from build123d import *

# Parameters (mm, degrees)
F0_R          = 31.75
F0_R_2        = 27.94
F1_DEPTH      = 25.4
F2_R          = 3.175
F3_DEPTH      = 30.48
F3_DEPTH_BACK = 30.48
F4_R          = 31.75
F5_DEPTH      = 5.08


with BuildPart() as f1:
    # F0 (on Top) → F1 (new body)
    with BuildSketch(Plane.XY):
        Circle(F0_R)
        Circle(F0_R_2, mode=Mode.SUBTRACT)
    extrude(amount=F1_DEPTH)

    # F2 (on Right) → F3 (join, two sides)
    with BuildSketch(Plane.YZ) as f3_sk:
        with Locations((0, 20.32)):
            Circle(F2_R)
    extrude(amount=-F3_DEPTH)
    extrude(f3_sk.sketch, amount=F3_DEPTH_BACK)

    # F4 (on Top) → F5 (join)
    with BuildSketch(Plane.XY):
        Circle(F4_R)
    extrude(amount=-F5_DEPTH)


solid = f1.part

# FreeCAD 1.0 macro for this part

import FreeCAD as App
import Part
import Sketcher

V = App.Vector
Q = App.Units.Quantity

doc = App.newDocument("Part")
body = doc.addObject("PartDesign::Body", "Body")

# Sketch on XY plane
sketch1 = doc.addObject("Sketcher::SketchObject", "Sketch")
body.addObject(sketch1)
sketch1.AttachmentSupport = (doc.XY_Plane, [""])
sketch1.MapMode = "FlatFace"
sketch1.addGeometry([
    Part.Circle(V(0, 0, 0), V(0, 0, 1), 32),
    Part.Circle(V(0, 0, 0), V(0, 0, 1), 28),
], False)
sketch1.addConstraint([
    Sketcher.Constraint("Coincident", 0, 3, -1, 1),
    Sketcher.Constraint("Coincident", 1, 3, -1, 1),
    Sketcher.Constraint("Diameter", 0, Q("2.5 in")),
    Sketcher.Constraint("Diameter", 1, Q("2.2 in")),
])
pad1 = doc.addObject("PartDesign::Pad", "Pad")
body.addObject(pad1)
pad1.Profile = sketch1
pad1.Length = Q("1 in")

# Sketch on YZ plane
sketch2 = doc.addObject("Sketcher::SketchObject", "Sketch001")
body.addObject(sketch2)
sketch2.AttachmentSupport = (doc.YZ_Plane, [""])
sketch2.MapMode = "FlatFace"
sketch2.addGeometry(Part.Circle(V(0, 20.3, 0), V(0, 0, 1), 3.2), False)
sketch2.addConstraint([
    Sketcher.Constraint("PointOnObject", 0, 3, -2),
    Sketcher.Constraint("Diameter", 0, Q("0.25 in")),
    Sketcher.Constraint("DistanceY", -1, 1, 0, 3, Q("0.8 in")),
])
pad2 = doc.addObject("PartDesign::Pad", "Pad001")
body.addObject(pad2)
pad2.Profile = sketch2
pad2.Type = "TwoLengths"
pad2.Length = Q("1.2 in")
pad2.Length2 = Q("1.2 in")
pad2.Reversed = True

# Sketch on XY plane
sketch3 = doc.addObject("Sketcher::SketchObject", "Sketch002")
body.addObject(sketch3)
sketch3.AttachmentSupport = (doc.XY_Plane, [""])
sketch3.MapMode = "FlatFace"
sketch3.addGeometry(Part.Circle(V(0, 0, 0), V(0, 0, 1), 32), False)
sketch3.addConstraint([
    Sketcher.Constraint("Coincident", 0, 3, -1, 1),
    Sketcher.Constraint("Diameter", 0, Q("2.5 in")),
])
pad3 = doc.addObject("PartDesign::Pad", "Pad002")
body.addObject(pad3)
pad3.Profile = sketch3
pad3.Length = Q("0.2 in")
pad3.Reversed = True

doc.recompute()
